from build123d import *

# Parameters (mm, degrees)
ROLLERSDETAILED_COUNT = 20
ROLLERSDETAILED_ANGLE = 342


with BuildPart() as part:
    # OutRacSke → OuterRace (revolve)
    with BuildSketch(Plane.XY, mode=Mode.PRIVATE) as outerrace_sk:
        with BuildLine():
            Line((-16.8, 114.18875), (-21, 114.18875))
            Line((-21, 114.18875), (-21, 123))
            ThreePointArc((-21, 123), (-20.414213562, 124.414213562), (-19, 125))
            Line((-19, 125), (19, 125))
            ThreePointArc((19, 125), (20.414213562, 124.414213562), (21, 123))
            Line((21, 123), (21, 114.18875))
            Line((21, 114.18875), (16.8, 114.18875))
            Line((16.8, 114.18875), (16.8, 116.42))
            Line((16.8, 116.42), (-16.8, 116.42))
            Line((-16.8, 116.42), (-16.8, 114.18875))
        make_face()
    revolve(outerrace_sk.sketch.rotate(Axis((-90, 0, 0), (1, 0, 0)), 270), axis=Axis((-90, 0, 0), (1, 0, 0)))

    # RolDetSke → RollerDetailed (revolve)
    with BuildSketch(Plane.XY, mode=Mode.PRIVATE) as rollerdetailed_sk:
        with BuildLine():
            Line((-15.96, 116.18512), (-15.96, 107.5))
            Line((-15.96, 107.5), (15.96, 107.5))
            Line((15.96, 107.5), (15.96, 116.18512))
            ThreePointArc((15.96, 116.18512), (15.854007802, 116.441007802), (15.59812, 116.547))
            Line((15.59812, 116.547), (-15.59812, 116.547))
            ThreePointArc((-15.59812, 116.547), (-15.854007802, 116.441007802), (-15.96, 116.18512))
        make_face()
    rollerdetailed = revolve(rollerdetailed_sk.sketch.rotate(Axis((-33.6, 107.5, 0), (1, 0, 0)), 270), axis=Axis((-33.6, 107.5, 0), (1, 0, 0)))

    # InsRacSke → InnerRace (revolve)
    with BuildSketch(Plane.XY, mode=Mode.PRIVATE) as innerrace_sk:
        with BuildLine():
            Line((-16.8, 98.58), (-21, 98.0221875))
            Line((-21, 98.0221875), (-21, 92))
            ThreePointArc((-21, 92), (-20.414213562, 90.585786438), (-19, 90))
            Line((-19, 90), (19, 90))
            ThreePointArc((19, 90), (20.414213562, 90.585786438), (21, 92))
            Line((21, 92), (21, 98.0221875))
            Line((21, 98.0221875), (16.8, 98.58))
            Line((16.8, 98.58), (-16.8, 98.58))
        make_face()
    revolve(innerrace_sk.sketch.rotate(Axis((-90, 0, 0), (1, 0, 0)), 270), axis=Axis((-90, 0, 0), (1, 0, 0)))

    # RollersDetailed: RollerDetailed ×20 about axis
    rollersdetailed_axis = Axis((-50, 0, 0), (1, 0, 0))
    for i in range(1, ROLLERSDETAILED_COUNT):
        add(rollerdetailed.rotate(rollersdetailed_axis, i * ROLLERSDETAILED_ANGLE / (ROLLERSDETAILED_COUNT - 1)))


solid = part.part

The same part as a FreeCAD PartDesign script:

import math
import FreeCAD as App
import Part
import Sketcher

V = App.Vector
Q = App.Units.Quantity

doc = App.newDocument("Part")
body = doc.addObject("PartDesign::Body", "Body")

# Sketch on XY plane
sketch1 = doc.addObject("Sketcher::SketchObject", "Sketch")
body.addObject(sketch1)
sketch1.AttachmentSupport = (doc.XY_Plane, [""])
sketch1.MapMode = "FlatFace"
sketch1.addGeometry([
    Part.LineSegment(V(-21, 114.2, 0), V(-16.8, 114.2, 0)),  # 0
    Part.LineSegment(V(-16.8, 114.2, 0), V(-16.8, 116.4, 0)),  # 1
    Part.LineSegment(V(-16.8, 116.4, 0), V(16.8, 116.4, 0)),  # 2
    Part.LineSegment(V(16.8, 116.4, 0), V(16.8, 114.2, 0)),  # 3
    Part.LineSegment(V(16.8, 114.2, 0), V(21, 114.2, 0)),  # 4
    Part.LineSegment(V(21, 114.2, 0), V(21, 123, 0)),  # 5
    Part.ArcOfCircle(Part.Circle(V(19, 123, 0), V(0, 0, 1), 2), math.radians(0), math.radians(90)),  # 6
    Part.LineSegment(V(19, 125, 0), V(-19, 125, 0)),  # 7
    Part.ArcOfCircle(Part.Circle(V(-19, 123, 0), V(0, 0, 1), 2), math.radians(90), math.radians(180)),  # 8
    Part.LineSegment(V(-21, 123, 0), V(-21, 114.2, 0)),  # 9
], False)
sketch1.addConstraint([
    Sketcher.Constraint("Coincident", 0, 2, 1, 1),
    Sketcher.Constraint("Coincident", 1, 2, 2, 1),
    Sketcher.Constraint("Coincident", 2, 2, 3, 1),
    Sketcher.Constraint("Coincident", 3, 2, 4, 1),
    Sketcher.Constraint("Coincident", 4, 2, 5, 1),
    Sketcher.Constraint("Tangent", 5, 2, 6, 1),
    Sketcher.Constraint("Tangent", 6, 2, 7, 1),
    Sketcher.Constraint("Tangent", 7, 2, 8, 1),
    Sketcher.Constraint("Tangent", 8, 2, 9, 1),
    Sketcher.Constraint("Coincident", 9, 2, 0, 1),
    Sketcher.Constraint("Horizontal", 0),
    Sketcher.Constraint("Vertical", 1),
    Sketcher.Constraint("Horizontal", 2),
    Sketcher.Constraint("Vertical", 3),
    Sketcher.Constraint("Horizontal", 4),
    Sketcher.Constraint("Vertical", 5),
    Sketcher.Constraint("Horizontal", 7),
    Sketcher.Constraint("Vertical", 9),
    Sketcher.Constraint("Equal", 6, 8),
    Sketcher.Constraint("Symmetric", 0, 2, 3, 2, -2),
    Sketcher.Constraint("Equal", 0, 4),
    Sketcher.Constraint("Radius", 6, Q("2 mm")),
    Sketcher.Constraint("DistanceX", 7, 2, 7, 1, Q("38 mm")),
    Sketcher.Constraint("DistanceX", 0, 1, 0, 2, Q("4.2 mm")),
    Sketcher.Constraint("DistanceY", -1, 1, 6, 3, Q("123 mm")),
    Sketcher.Constraint("DistanceY", -1, 1, 1, 2, Q("116.42 mm")),
    Sketcher.Constraint("DistanceY", 1, 1, 1, 2, Q("2.23125 mm")),
])
revolution = doc.addObject("PartDesign::Revolution", "Revolution")
body.addObject(revolution)
revolution.Profile = sketch1
revolution.ReferenceAxis = (sketch1, ["H_Axis"])
revolution.Angle = 360

# Sketch on XY plane
sketch2 = doc.addObject("Sketcher::SketchObject", "Sketch001")
body.addObject(sketch2)
sketch2.AttachmentSupport = (doc.XY_Plane, [""])
sketch2.MapMode = "FlatFace"
sketch2.addGeometry([
    Part.LineSegment(V(-15.96, 116.19, 0), V(-15.96, 107.5, 0)),  # 0
    Part.LineSegment(V(-15.96, 107.5, 0), V(15.96, 107.5, 0)),  # 1
    Part.LineSegment(V(15.96, 107.5, 0), V(15.96, 116.19, 0)),  # 2
    Part.ArcOfCircle(Part.Circle(V(15.6, 116.19, 0), V(0, 0, 1), 0.36), math.radians(0), math.radians(90)),  # 3
    Part.LineSegment(V(15.6, 116.55, 0), V(-15.6, 116.55, 0)),  # 4
    Part.ArcOfCircle(Part.Circle(V(-15.6, 116.19, 0), V(0, 0, 1), 0.36), math.radians(90), math.radians(180)),  # 5
], False)
sketch2.addGeometry(Part.LineSegment(V(-15.96, 107.5, 0), V(15.96, 107.5, 0)), True)  # axis
sketch2.addConstraint([
    Sketcher.Constraint("Coincident", 0, 2, 1, 1),
    Sketcher.Constraint("Coincident", 1, 2, 2, 1),
    Sketcher.Constraint("Tangent", 2, 2, 3, 1),
    Sketcher.Constraint("Tangent", 3, 2, 4, 1),
    Sketcher.Constraint("Tangent", 4, 2, 5, 1),
    Sketcher.Constraint("Tangent", 5, 2, 0, 1),
    Sketcher.Constraint("Vertical", 0),
    Sketcher.Constraint("Horizontal", 1),
    Sketcher.Constraint("Vertical", 2),
    Sketcher.Constraint("Horizontal", 4),
    Sketcher.Constraint("Horizontal", 6),
    Sketcher.Constraint("Coincident", 6, 1, 0, 2),
    Sketcher.Constraint("Equal", 3, 5),
    Sketcher.Constraint("Vertical", 2, 2, 6, 2),
    Sketcher.Constraint("DistanceX", 1, 1, 1, 2, Q("31.92 mm")),
    Sketcher.Constraint("DistanceY", -1, 1, 0, 2, Q("107.5 mm")),
    Sketcher.Constraint("DistanceX", 0, 2, -1, 1, Q("15.96 mm")),
    Sketcher.Constraint("Radius", 3, Q("0.36188 mm")),
    Sketcher.Constraint("DistanceY", -1, 1, 3, 2, Q("116.547 mm")),
])
revolution2 = doc.addObject("PartDesign::Revolution", "Revolution001")
body.addObject(revolution2)
revolution2.Profile = sketch2
revolution2.ReferenceAxis = (sketch2, ["Axis0"])
revolution2.Angle = 360

# Sketch on XY plane
sketch3 = doc.addObject("Sketcher::SketchObject", "Sketch002")
body.addObject(sketch3)
sketch3.AttachmentSupport = (doc.XY_Plane, [""])
sketch3.MapMode = "FlatFace"
sketch3.addGeometry([
    Part.LineSegment(V(-16.8, 98.6, 0), V(-21, 98, 0)),  # 0
    Part.LineSegment(V(-21, 98, 0), V(-21, 92, 0)),  # 1
    Part.ArcOfCircle(Part.Circle(V(-19, 92, 0), V(0, 0, 1), 2), math.radians(-180), math.radians(-90)),  # 2
    Part.LineSegment(V(-19, 90, 0), V(19, 90, 0)),  # 3
    Part.ArcOfCircle(Part.Circle(V(19, 92, 0), V(0, 0, 1), 2), math.radians(-90), math.radians(0)),  # 4
    Part.LineSegment(V(21, 92, 0), V(21, 98, 0)),  # 5
    Part.LineSegment(V(21, 98, 0), V(16.8, 98.6, 0)),  # 6
    Part.LineSegment(V(16.8, 98.6, 0), V(-16.8, 98.6, 0)),  # 7
], False)
sketch3.addConstraint([
    Sketcher.Constraint("Coincident", 0, 2, 1, 1),
    Sketcher.Constraint("Tangent", 1, 2, 2, 1),
    Sketcher.Constraint("Tangent", 2, 2, 3, 1),
    Sketcher.Constraint("Tangent", 3, 2, 4, 1),
    Sketcher.Constraint("Tangent", 4, 2, 5, 1),
    Sketcher.Constraint("Coincident", 5, 2, 6, 1),
    Sketcher.Constraint("Coincident", 6, 2, 7, 1),
    Sketcher.Constraint("Coincident", 7, 2, 0, 1),
    Sketcher.Constraint("Vertical", 1),
    Sketcher.Constraint("Horizontal", 3),
    Sketcher.Constraint("Vertical", 5),
    Sketcher.Constraint("Horizontal", 7),
    Sketcher.Constraint("Equal", 2, 4),
    Sketcher.Constraint("Symmetric", 0, 2, 5, 2, -2),
    Sketcher.Constraint("Equal", 0, 6),
    Sketcher.Constraint("Radius", 2, Q("2 mm")),
    Sketcher.Constraint("DistanceX", 3, 1, 3, 2, Q("38 mm")),
    Sketcher.Constraint("DistanceX", 7, 2, 7, 1, Q("33.6 mm")),
    Sketcher.Constraint("DistanceY", -1, 1, 2, 3, Q("92 mm")),
    Sketcher.Constraint("DistanceY", -1, 1, 6, 2, Q("98.58 mm")),
    Sketcher.Constraint("Distance", 0, Q("4.23688 mm")),
])
revolution3 = doc.addObject("PartDesign::Revolution", "Revolution002")
body.addObject(revolution3)
revolution3.Profile = sketch3
revolution3.ReferenceAxis = (sketch3, ["H_Axis"])
revolution3.Angle = 360
doc.recompute()

polarpattern = doc.addObject("PartDesign::PolarPattern", "PolarPattern")
body.addObject(polarpattern)
polarpattern.Originals = [revolution2]
polarpattern.Axis = (doc.X_Axis, [""])
polarpattern.Angle = 360
polarpattern.Occurrences = 20
body.Tip = polarpattern

doc.recompute()
